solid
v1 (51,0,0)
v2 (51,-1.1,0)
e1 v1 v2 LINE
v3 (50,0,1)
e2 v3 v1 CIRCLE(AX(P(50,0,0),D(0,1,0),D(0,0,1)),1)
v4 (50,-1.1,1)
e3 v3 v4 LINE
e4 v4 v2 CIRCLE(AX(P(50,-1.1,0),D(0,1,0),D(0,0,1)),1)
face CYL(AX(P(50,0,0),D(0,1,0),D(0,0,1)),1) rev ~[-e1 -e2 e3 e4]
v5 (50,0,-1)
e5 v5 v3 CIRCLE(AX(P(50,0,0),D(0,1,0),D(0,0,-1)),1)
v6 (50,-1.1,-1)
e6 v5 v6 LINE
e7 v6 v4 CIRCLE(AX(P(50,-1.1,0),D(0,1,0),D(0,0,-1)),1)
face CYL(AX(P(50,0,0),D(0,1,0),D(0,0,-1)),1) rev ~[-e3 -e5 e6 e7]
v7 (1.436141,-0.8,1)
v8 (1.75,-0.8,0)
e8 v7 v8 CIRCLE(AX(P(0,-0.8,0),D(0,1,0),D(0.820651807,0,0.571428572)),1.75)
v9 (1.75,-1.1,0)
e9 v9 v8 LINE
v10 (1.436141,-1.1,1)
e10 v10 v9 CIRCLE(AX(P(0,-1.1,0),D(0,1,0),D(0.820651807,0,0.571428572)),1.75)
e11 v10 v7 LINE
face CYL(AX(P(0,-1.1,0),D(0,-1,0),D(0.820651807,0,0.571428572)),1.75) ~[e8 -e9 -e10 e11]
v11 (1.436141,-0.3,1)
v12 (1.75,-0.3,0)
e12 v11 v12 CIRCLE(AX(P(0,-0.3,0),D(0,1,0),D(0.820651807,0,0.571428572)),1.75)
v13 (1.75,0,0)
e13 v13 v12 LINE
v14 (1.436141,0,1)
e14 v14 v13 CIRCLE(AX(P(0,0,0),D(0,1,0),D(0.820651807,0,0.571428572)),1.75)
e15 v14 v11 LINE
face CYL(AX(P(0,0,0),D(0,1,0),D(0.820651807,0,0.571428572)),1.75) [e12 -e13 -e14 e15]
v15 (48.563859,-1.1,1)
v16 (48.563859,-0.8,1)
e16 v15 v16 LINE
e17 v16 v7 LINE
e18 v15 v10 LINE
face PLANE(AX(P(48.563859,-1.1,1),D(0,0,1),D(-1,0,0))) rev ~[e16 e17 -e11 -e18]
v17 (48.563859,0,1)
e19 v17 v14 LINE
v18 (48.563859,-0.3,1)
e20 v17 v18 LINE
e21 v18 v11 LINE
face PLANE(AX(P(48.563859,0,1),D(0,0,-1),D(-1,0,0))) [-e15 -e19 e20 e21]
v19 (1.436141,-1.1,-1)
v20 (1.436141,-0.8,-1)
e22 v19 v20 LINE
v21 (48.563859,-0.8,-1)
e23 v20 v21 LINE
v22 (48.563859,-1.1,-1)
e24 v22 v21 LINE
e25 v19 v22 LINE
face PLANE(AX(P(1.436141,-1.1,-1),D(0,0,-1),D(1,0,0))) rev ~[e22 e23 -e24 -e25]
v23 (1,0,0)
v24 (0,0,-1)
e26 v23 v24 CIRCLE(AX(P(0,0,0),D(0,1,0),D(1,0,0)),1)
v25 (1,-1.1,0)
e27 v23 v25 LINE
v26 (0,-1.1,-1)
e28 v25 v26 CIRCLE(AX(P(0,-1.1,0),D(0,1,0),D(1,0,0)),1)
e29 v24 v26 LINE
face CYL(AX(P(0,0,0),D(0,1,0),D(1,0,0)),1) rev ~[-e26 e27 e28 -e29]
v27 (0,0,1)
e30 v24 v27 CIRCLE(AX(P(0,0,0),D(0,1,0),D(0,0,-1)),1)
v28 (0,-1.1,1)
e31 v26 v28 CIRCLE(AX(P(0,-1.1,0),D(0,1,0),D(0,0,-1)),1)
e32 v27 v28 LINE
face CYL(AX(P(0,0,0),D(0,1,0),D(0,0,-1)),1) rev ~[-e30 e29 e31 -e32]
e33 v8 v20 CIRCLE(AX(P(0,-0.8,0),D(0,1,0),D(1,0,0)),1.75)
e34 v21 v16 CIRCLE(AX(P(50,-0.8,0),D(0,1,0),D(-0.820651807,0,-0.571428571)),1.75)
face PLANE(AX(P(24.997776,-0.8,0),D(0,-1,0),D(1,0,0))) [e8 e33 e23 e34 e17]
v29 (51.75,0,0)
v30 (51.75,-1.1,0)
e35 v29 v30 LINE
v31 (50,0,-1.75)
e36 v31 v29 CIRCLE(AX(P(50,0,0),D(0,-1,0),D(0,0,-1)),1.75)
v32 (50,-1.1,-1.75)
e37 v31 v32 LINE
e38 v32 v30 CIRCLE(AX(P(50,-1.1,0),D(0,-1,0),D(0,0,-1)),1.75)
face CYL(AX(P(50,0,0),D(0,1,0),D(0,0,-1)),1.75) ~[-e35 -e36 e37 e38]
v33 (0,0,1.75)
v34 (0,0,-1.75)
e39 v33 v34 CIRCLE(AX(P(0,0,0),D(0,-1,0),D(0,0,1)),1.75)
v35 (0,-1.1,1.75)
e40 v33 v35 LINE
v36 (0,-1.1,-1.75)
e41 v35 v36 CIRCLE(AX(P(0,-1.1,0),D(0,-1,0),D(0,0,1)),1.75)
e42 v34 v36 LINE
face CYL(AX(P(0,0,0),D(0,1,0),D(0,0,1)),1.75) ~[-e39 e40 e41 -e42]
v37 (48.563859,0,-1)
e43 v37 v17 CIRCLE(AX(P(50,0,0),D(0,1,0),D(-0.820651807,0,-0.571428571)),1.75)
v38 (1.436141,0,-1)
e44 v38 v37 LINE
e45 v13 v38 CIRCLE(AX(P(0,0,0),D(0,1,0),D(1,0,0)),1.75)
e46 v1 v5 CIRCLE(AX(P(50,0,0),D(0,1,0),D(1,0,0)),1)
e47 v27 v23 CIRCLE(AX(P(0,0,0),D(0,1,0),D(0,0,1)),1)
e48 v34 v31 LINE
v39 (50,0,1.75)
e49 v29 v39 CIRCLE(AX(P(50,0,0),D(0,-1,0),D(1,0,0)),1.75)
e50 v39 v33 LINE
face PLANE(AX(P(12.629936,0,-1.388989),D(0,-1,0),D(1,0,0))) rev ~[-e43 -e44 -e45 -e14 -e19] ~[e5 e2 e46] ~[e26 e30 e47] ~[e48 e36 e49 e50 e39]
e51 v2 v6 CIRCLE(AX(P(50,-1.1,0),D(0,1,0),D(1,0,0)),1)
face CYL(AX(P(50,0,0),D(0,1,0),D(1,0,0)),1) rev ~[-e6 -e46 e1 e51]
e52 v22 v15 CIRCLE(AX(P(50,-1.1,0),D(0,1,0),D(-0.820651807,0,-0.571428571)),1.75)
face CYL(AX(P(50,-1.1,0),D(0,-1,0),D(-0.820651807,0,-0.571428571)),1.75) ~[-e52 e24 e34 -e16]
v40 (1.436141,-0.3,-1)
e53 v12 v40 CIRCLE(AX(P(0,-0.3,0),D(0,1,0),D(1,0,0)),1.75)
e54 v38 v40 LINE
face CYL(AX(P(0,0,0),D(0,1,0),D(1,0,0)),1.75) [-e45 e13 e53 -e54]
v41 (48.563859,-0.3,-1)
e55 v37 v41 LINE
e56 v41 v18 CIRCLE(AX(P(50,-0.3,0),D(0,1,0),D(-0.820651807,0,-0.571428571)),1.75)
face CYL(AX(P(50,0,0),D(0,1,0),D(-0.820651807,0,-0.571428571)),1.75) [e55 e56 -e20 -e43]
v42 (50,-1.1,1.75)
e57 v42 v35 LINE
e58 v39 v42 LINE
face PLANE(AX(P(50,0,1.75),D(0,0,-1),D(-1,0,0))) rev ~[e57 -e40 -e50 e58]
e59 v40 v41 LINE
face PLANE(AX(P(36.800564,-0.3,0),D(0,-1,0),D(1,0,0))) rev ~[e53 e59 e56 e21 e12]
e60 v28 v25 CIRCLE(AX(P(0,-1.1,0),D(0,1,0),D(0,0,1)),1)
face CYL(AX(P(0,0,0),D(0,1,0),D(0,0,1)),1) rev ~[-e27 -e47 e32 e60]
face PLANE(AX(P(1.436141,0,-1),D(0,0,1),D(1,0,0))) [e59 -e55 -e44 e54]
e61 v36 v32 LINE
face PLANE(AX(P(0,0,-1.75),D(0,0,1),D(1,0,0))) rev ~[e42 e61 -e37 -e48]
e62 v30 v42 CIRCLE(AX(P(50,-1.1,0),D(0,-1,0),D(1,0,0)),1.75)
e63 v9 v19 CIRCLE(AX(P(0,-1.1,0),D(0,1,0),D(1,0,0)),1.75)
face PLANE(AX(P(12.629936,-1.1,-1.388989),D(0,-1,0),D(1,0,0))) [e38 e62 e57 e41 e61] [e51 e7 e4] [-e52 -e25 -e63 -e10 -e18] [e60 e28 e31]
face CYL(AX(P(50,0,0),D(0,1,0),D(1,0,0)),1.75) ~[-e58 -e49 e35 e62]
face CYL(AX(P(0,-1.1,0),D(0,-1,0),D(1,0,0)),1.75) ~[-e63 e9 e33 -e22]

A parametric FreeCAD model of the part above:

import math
import FreeCAD as App
import Part
import Sketcher

V = App.Vector
Q = App.Units.Quantity

doc = App.newDocument("Part")
params = doc.addObject("Spreadsheet::Sheet", "Params")
for row, (alias, value) in enumerate([
    ("sketch1_radius", "1 mm"),
    ("sketch1_width", "50 mm"),
    ("sketch1_radius2", "1.75 mm"),
    ("pad1_length", "1.1 mm"),
    ("sketch2_radius", "1.75 mm"),
    ("pocket1_length", "0.3 mm"),
    ("sketch3_radius", "1.75 mm"),
    ("pocket2_length", "0.3 mm"),
], start=1):
    params.set(f"A{row}", alias)
    params.set(f"B{row}", "=" + value)
    params.setAlias(f"B{row}", alias)

body = doc.addObject("PartDesign::Body", "Body")

sketch1 = doc.addObject("Sketcher::SketchObject", "Sketch")
body.addObject(sketch1)
sketch1.AttachmentSupport = (doc.XZ_Plane, [""])
sketch1.MapMode = "FlatFace"
sketch1.addGeometry(Part.LineSegment(V(50, 1.8, 0), V(0, 1.8, 0)), False)
sketch1.addGeometry(Part.ArcOfCircle(Part.Circle(V(0, 0, 0), V(0, 0, 1), 1.8), math.radians(90), math.radians(270)), False)
sketch1.addGeometry(Part.LineSegment(V(0, -1.8, 0), V(50, -1.8, 0)), False)
sketch1.addGeometry(Part.ArcOfCircle(Part.Circle(V(50, 0, 0), V(0, 0, 1), 1.8), math.radians(-90), math.radians(0)), False)
sketch1.addGeometry(Part.ArcOfCircle(Part.Circle(V(50, 0, 0), V(0, 0, 1), 1.8), math.radians(0), math.radians(90)), False)
sketch1.addGeometry(Part.ArcOfCircle(Part.Circle(V(0, 0, 0), V(0, 0, 1), 1), math.radians(90), math.radians(270)), False)
sketch1.addGeometry(Part.ArcOfCircle(Part.Circle(V(0, 0, 0), V(0, 0, 1), 1), math.radians(0), math.radians(90)), False)
sketch1.addGeometry(Part.ArcOfCircle(Part.Circle(V(0, 0, 0), V(0, 0, 1), 1), math.radians(-90), math.radians(0)), False)
sketch1.addGeometry(Part.ArcOfCircle(Part.Circle(V(50, 0, 0), V(0, 0, 1), 1), math.radians(90), math.radians(270)), False)
sketch1.addGeometry(Part.ArcOfCircle(Part.Circle(V(50, 0, 0), V(0, 0, 1), 1), math.radians(0), math.radians(90)), False)
sketch1.addGeometry(Part.ArcOfCircle(Part.Circle(V(50, 0, 0), V(0, 0, 1), 1), math.radians(-90), math.radians(0)), False)
sketch1.addConstraint(Sketcher.Constraint("Tangent", 0, 2, 1, 1))
sketch1.addConstraint(Sketcher.Constraint("Tangent", 1, 2, 2, 1))
sketch1.addConstraint(Sketcher.Constraint("Tangent", 2, 2, 3, 1))
sketch1.addConstraint(Sketcher.Constraint("Tangent", 3, 2, 4, 1))
sketch1.addConstraint(Sketcher.Constraint("Tangent", 4, 2, 0, 1))
sketch1.addConstraint(Sketcher.Constraint("Tangent", 5, 1, 6, 2))
sketch1.addConstraint(Sketcher.Constraint("Tangent", 6, 1, 7, 2))
sketch1.addConstraint(Sketcher.Constraint("Tangent", 7, 1, 5, 2))
sketch1.addConstraint(Sketcher.Constraint("Tangent", 8, 1, 9, 2))
sketch1.addConstraint(Sketcher.Constraint("Tangent", 9, 1, 10, 2))
sketch1.addConstraint(Sketcher.Constraint("Tangent", 10, 1, 8, 2))
sketch1.addConstraint(Sketcher.Constraint("Horizontal", 0))
sketch1.addConstraint(Sketcher.Constraint("Horizontal", 2))
sketch1.addConstraint(Sketcher.Constraint("Coincident", 1, 3, -1, 1))
sketch1.addConstraint(Sketcher.Constraint("Coincident", 5, 3, -1, 1))
sketch1.addConstraint(Sketcher.Constraint("Coincident", 8, 3, 3, 3))
sketch1.addConstraint(Sketcher.Constraint("Equal", 1, 3))
sketch1.addConstraint(Sketcher.Constraint("Equal", 7, 8))
sketch1.addConstraint(Sketcher.Constraint("PointOnObject", 3, 2, -1))
sketch1.addConstraint(Sketcher.Constraint("PointOnObject", 5, 1, -2))
sketch1.addConstraint(Sketcher.Constraint("PointOnObject", 6, 1, -1))
sketch1.addConstraint(Sketcher.Constraint("PointOnObject", 7, 1, -2))
sketch1.addConstraint(Sketcher.Constraint("PointOnObject", 9, 1, -1))
sketch1.addConstraint(Sketcher.Constraint("Vertical", 4, 2, 8, 1))
sketch1.addConstraint(Sketcher.Constraint("Vertical", 8, 1, 10, 1))
sketch1.addConstraint(Sketcher.Constraint("Radius", 5, Q("1 mm")))
sketch1.addConstraint(Sketcher.Constraint("DistanceX", 0, 2, 0, 1, Q("50 mm")))
sketch1.addConstraint(Sketcher.Constraint("Radius", 1, Q("1.75 mm")))
sketch1.setExpression("Constraints[25]", "Params.sketch1_radius")
sketch1.setExpression("Constraints[26]", "Params.sketch1_width")
sketch1.setExpression("Constraints[27]", "Params.sketch1_radius2")
pad1 = doc.addObject("PartDesign::Pad", "Pad")
body.addObject(pad1)
pad1.Profile = sketch1
pad1.setExpression("Length", "Params.pad1_length")

sketch2 = doc.addObject("Sketcher::SketchObject", "Sketch001")
body.addObject(sketch2)
sketch2.AttachmentSupport = (doc.XZ_Plane, [""])
sketch2.MapMode = "FlatFace"
sketch2.AttachmentOffset = App.Placement(V(0, 0, 1.1), App.Rotation())
sketch2.addGeometry(Part.ArcOfCircle(Part.Circle(V(50, 0, 0), V(0, 0, 1), 1.8), math.radians(145), math.radians(215)), False)
sketch2.addGeometry(Part.LineSegment(V(48.6, 1, 0), V(1.4, 1, 0)), False)
sketch2.addGeometry(Part.ArcOfCircle(Part.Circle(V(0, 0, 0), V(0, 0, 1), 1.7), math.radians(0), math.radians(35)), False)
sketch2.addGeometry(Part.ArcOfCircle(Part.Circle(V(0, 0, 0), V(0, 0, 1), 1.7), math.radians(-35), math.radians(0)), False)
sketch2.addGeometry(Part.LineSegment(V(1.4, -1, 0), V(48.6, -1, 0)), False)
sketch2.addConstraint(Sketcher.Constraint("Coincident", 0, 1, 1, 1))
sketch2.addConstraint(Sketcher.Constraint("Coincident", 1, 2, 2, 2))
sketch2.addConstraint(Sketcher.Constraint("Tangent", 2, 1, 3, 2))
sketch2.addConstraint(Sketcher.Constraint("Coincident", 3, 1, 4, 1))
sketch2.addConstraint(Sketcher.Constraint("Coincident", 4, 2, 0, 2))
sketch2.addConstraint(Sketcher.Constraint("Horizontal", 1))
sketch2.addConstraint(Sketcher.Constraint("Horizontal", 4))
sketch2.addConstraint(Sketcher.Constraint("Coincident", 2, 3, -1, 1))
sketch2.addConstraint(Sketcher.Constraint("Equal", 0, 2))
sketch2.addConstraint(Sketcher.Constraint("Equal", 2, 3))
sketch2.addConstraint(Sketcher.Constraint("Symmetric", 0, 1, 4, 2, -1))
sketch2.addConstraint(Sketcher.Constraint("PointOnObject", 2, 1, -1))
sketch2.addConstraint(Sketcher.Constraint("Radius", 0, Q("1.75 mm")))
sketch2.addConstraint(Sketcher.Constraint("DistanceX", -1, 1, 0, 3, Q("50 mm")))
sketch2.addConstraint(Sketcher.Constraint("DistanceY", -1, 1, 0, 1, Q("1 mm")))
sketch2.setExpression("Constraints[12]", "Params.sketch2_radius")
pocket1 = doc.addObject("PartDesign::Pocket", "Pocket")
body.addObject(pocket1)
pocket1.Profile = sketch2
pocket1.setExpression("Length", "Params.pocket1_length")

sketch3 = doc.addObject("Sketcher::SketchObject", "Sketch002")
body.addObject(sketch3)
sketch3.AttachmentSupport = (doc.XZ_Plane, [""])
sketch3.MapMode = "FlatFace"
sketch3.addGeometry(Part.LineSegment(V(48.6, 1, 0), V(1.4, 1, 0)), False)
sketch3.addGeometry(Part.ArcOfCircle(Part.Circle(V(0, 0, 0), V(0, 0, 1), 1.7), math.radians(0), math.radians(35)), False)
sketch3.addGeometry(Part.ArcOfCircle(Part.Circle(V(0, 0, 0), V(0, 0, 1), 1.7), math.radians(-35), math.radians(0)), False)
sketch3.addGeometry(Part.LineSegment(V(1.4, -1, 0), V(48.6, -1, 0)), False)
sketch3.addGeometry(Part.ArcOfCircle(Part.Circle(V(50, 0, 0), V(0, 0, 1), 1.8), math.radians(145), math.radians(215)), False)
sketch3.addConstraint(Sketcher.Constraint("Coincident", 0, 2, 1, 2))
sketch3.addConstraint(Sketcher.Constraint("Tangent", 1, 1, 2, 2))
sketch3.addConstraint(Sketcher.Constraint("Coincident", 2, 1, 3, 1))
sketch3.addConstraint(Sketcher.Constraint("Coincident", 3, 2, 4, 2))
sketch3.addConstraint(Sketcher.Constraint("Coincident", 4, 1, 0, 1))
sketch3.addConstraint(Sketcher.Constraint("Horizontal", 0))
sketch3.addConstraint(Sketcher.Constraint("Horizontal", 3))
sketch3.addConstraint(Sketcher.Constraint("Coincident", 1, 3, -1, 1))
sketch3.addConstraint(Sketcher.Constraint("Equal", 1, 2))
sketch3.addConstraint(Sketcher.Constraint("Equal", 2, 4))
sketch3.addConstraint(Sketcher.Constraint("Symmetric", 3, 2, 4, 1, -1))
sketch3.addConstraint(Sketcher.Constraint("PointOnObject", 1, 1, -1))
sketch3.addConstraint(Sketcher.Constraint("Radius", 1, Q("1.75 mm")))
sketch3.addConstraint(Sketcher.Constraint("DistanceX", -1, 1, 4, 3, Q("50 mm")))
sketch3.addConstraint(Sketcher.Constraint("DistanceY", -1, 1, 0, 2, Q("1 mm")))
sketch3.setExpression("Constraints[12]", "Params.sketch3_radius")
pocket2 = doc.addObject("PartDesign::Pocket", "Pocket001")
body.addObject(pocket2)
pocket2.Profile = sketch3
pocket2.setExpression("Length", "Params.pocket2_length")
pocket2.Reversed = True

doc.recompute()
